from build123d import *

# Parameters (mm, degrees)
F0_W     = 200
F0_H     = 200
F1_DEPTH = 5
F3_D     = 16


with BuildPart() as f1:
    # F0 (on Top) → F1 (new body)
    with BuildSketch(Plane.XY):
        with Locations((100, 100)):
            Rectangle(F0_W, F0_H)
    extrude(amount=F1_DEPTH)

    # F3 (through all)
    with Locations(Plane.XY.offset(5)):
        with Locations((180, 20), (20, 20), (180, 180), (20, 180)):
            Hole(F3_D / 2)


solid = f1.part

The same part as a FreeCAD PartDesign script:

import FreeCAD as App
import Part
import Sketcher

V = App.Vector

doc = App.newDocument("Part")
params = doc.addObject("Spreadsheet::Sheet", "Params")
for row, (alias, value) in enumerate([
    ("sketch1_width", "200 mm"),
    ("pad1_length", "5 mm"),
    ("sketch2_diameter", "16 mm"),
    ("hole_diameter", "16 mm"),
], start=1):
    params.set(f"A{row}", alias)
    params.set(f"B{row}", "=" + value)
    params.setAlias(f"B{row}", alias)

body = doc.addObject("PartDesign::Body", "Body")

# Sketch on XY plane
sketch1 = doc.addObject("Sketcher::SketchObject", "Sketch")
body.addObject(sketch1)
sketch1.AttachmentSupport = (doc.XY_Plane, [""])
sketch1.MapMode = "FlatFace"
sketch1.addGeometry([
    Part.LineSegment(V(0, 200, 0), V(0, 0, 0)),
    Part.LineSegment(V(0, 0, 0), V(200, 0, 0)),
    Part.LineSegment(V(200, 0, 0), V(200, 200, 0)),
    Part.LineSegment(V(200, 200, 0), V(0, 200, 0)),
], False)
sketch1.addConstraint([
    Sketcher.Constraint("Coincident", 0, 2, 1, 1),
    Sketcher.Constraint("Coincident", 1, 2, 2, 1),
    Sketcher.Constraint("Coincident", 2, 2, 3, 1),
    Sketcher.Constraint("Coincident", 3, 2, 0, 1),
    Sketcher.Constraint("Vertical", 0),
    Sketcher.Constraint("Horizontal", 1),
    Sketcher.Constraint("Vertical", 2),
    Sketcher.Constraint("Horizontal", 3),
    Sketcher.Constraint("Coincident", 0, 2, -1, 1),
    Sketcher.Constraint("Equal", 3, 0),
    Sketcher.Constraint("DistanceX", 1, 1, 1, 2, 200.0),
])
sketch1.setExpression("Constraints[10]", "Params.sketch1_width")
pad1 = doc.addObject("PartDesign::Pad", "Pad")
body.addObject(pad1)
pad1.Profile = sketch1
pad1.setExpression("Length", "Params.pad1_length")

# Sketch on XY plane
sketch2 = doc.addObject("Sketcher::SketchObject", "Sketch001")
body.addObject(sketch2)
sketch2.AttachmentSupport = (doc.XY_Plane, [""])
sketch2.MapMode = "FlatFace"
sketch2.AttachmentOffset = App.Placement(V(0, 0, 5), App.Rotation())
sketch2.addGeometry([
    Part.Circle(V(180, 20, 0), V(0, 0, 1), 8),
    Part.Circle(V(20, 20, 0), V(0, 0, 1), 8),
    Part.Circle(V(180, 180, 0), V(0, 0, 1), 8),
    Part.Circle(V(20, 180, 0), V(0, 0, 1), 8),
], False)
sketch2.addConstraint([
    Sketcher.Constraint("Equal", 0, 1),
    Sketcher.Constraint("Equal", 1, 2),
    Sketcher.Constraint("Equal", 2, 3),
    Sketcher.Constraint("Horizontal", 0, 3, 1, 3),
    Sketcher.Constraint("Horizontal", 2, 3, 3, 3),
    Sketcher.Constraint("Vertical", 0, 3, 2, 3),
    Sketcher.Constraint("Vertical", 1, 3, 3, 3),
    Sketcher.Constraint("Diameter", 0, 16.0),
    Sketcher.Constraint("DistanceX", -1, 1, 0, 3, 180.0),
    Sketcher.Constraint("DistanceY", -1, 1, 0, 3, 20.0),
    Sketcher.Constraint("DistanceX", -1, 1, 1, 3, 20.0),
    Sketcher.Constraint("DistanceY", -1, 1, 2, 3, 180.0),
])
sketch2.setExpression("Constraints[7]", "Params.sketch2_diameter")
doc.recompute()
hole = doc.addObject("PartDesign::Hole", "Hole")
body.addObject(hole)
hole.Profile = sketch2
hole.ThreadType = "None"
hole.setExpression("Diameter", "Params.hole_diameter")
hole.DepthType = "ThroughAll"

doc.recompute()
